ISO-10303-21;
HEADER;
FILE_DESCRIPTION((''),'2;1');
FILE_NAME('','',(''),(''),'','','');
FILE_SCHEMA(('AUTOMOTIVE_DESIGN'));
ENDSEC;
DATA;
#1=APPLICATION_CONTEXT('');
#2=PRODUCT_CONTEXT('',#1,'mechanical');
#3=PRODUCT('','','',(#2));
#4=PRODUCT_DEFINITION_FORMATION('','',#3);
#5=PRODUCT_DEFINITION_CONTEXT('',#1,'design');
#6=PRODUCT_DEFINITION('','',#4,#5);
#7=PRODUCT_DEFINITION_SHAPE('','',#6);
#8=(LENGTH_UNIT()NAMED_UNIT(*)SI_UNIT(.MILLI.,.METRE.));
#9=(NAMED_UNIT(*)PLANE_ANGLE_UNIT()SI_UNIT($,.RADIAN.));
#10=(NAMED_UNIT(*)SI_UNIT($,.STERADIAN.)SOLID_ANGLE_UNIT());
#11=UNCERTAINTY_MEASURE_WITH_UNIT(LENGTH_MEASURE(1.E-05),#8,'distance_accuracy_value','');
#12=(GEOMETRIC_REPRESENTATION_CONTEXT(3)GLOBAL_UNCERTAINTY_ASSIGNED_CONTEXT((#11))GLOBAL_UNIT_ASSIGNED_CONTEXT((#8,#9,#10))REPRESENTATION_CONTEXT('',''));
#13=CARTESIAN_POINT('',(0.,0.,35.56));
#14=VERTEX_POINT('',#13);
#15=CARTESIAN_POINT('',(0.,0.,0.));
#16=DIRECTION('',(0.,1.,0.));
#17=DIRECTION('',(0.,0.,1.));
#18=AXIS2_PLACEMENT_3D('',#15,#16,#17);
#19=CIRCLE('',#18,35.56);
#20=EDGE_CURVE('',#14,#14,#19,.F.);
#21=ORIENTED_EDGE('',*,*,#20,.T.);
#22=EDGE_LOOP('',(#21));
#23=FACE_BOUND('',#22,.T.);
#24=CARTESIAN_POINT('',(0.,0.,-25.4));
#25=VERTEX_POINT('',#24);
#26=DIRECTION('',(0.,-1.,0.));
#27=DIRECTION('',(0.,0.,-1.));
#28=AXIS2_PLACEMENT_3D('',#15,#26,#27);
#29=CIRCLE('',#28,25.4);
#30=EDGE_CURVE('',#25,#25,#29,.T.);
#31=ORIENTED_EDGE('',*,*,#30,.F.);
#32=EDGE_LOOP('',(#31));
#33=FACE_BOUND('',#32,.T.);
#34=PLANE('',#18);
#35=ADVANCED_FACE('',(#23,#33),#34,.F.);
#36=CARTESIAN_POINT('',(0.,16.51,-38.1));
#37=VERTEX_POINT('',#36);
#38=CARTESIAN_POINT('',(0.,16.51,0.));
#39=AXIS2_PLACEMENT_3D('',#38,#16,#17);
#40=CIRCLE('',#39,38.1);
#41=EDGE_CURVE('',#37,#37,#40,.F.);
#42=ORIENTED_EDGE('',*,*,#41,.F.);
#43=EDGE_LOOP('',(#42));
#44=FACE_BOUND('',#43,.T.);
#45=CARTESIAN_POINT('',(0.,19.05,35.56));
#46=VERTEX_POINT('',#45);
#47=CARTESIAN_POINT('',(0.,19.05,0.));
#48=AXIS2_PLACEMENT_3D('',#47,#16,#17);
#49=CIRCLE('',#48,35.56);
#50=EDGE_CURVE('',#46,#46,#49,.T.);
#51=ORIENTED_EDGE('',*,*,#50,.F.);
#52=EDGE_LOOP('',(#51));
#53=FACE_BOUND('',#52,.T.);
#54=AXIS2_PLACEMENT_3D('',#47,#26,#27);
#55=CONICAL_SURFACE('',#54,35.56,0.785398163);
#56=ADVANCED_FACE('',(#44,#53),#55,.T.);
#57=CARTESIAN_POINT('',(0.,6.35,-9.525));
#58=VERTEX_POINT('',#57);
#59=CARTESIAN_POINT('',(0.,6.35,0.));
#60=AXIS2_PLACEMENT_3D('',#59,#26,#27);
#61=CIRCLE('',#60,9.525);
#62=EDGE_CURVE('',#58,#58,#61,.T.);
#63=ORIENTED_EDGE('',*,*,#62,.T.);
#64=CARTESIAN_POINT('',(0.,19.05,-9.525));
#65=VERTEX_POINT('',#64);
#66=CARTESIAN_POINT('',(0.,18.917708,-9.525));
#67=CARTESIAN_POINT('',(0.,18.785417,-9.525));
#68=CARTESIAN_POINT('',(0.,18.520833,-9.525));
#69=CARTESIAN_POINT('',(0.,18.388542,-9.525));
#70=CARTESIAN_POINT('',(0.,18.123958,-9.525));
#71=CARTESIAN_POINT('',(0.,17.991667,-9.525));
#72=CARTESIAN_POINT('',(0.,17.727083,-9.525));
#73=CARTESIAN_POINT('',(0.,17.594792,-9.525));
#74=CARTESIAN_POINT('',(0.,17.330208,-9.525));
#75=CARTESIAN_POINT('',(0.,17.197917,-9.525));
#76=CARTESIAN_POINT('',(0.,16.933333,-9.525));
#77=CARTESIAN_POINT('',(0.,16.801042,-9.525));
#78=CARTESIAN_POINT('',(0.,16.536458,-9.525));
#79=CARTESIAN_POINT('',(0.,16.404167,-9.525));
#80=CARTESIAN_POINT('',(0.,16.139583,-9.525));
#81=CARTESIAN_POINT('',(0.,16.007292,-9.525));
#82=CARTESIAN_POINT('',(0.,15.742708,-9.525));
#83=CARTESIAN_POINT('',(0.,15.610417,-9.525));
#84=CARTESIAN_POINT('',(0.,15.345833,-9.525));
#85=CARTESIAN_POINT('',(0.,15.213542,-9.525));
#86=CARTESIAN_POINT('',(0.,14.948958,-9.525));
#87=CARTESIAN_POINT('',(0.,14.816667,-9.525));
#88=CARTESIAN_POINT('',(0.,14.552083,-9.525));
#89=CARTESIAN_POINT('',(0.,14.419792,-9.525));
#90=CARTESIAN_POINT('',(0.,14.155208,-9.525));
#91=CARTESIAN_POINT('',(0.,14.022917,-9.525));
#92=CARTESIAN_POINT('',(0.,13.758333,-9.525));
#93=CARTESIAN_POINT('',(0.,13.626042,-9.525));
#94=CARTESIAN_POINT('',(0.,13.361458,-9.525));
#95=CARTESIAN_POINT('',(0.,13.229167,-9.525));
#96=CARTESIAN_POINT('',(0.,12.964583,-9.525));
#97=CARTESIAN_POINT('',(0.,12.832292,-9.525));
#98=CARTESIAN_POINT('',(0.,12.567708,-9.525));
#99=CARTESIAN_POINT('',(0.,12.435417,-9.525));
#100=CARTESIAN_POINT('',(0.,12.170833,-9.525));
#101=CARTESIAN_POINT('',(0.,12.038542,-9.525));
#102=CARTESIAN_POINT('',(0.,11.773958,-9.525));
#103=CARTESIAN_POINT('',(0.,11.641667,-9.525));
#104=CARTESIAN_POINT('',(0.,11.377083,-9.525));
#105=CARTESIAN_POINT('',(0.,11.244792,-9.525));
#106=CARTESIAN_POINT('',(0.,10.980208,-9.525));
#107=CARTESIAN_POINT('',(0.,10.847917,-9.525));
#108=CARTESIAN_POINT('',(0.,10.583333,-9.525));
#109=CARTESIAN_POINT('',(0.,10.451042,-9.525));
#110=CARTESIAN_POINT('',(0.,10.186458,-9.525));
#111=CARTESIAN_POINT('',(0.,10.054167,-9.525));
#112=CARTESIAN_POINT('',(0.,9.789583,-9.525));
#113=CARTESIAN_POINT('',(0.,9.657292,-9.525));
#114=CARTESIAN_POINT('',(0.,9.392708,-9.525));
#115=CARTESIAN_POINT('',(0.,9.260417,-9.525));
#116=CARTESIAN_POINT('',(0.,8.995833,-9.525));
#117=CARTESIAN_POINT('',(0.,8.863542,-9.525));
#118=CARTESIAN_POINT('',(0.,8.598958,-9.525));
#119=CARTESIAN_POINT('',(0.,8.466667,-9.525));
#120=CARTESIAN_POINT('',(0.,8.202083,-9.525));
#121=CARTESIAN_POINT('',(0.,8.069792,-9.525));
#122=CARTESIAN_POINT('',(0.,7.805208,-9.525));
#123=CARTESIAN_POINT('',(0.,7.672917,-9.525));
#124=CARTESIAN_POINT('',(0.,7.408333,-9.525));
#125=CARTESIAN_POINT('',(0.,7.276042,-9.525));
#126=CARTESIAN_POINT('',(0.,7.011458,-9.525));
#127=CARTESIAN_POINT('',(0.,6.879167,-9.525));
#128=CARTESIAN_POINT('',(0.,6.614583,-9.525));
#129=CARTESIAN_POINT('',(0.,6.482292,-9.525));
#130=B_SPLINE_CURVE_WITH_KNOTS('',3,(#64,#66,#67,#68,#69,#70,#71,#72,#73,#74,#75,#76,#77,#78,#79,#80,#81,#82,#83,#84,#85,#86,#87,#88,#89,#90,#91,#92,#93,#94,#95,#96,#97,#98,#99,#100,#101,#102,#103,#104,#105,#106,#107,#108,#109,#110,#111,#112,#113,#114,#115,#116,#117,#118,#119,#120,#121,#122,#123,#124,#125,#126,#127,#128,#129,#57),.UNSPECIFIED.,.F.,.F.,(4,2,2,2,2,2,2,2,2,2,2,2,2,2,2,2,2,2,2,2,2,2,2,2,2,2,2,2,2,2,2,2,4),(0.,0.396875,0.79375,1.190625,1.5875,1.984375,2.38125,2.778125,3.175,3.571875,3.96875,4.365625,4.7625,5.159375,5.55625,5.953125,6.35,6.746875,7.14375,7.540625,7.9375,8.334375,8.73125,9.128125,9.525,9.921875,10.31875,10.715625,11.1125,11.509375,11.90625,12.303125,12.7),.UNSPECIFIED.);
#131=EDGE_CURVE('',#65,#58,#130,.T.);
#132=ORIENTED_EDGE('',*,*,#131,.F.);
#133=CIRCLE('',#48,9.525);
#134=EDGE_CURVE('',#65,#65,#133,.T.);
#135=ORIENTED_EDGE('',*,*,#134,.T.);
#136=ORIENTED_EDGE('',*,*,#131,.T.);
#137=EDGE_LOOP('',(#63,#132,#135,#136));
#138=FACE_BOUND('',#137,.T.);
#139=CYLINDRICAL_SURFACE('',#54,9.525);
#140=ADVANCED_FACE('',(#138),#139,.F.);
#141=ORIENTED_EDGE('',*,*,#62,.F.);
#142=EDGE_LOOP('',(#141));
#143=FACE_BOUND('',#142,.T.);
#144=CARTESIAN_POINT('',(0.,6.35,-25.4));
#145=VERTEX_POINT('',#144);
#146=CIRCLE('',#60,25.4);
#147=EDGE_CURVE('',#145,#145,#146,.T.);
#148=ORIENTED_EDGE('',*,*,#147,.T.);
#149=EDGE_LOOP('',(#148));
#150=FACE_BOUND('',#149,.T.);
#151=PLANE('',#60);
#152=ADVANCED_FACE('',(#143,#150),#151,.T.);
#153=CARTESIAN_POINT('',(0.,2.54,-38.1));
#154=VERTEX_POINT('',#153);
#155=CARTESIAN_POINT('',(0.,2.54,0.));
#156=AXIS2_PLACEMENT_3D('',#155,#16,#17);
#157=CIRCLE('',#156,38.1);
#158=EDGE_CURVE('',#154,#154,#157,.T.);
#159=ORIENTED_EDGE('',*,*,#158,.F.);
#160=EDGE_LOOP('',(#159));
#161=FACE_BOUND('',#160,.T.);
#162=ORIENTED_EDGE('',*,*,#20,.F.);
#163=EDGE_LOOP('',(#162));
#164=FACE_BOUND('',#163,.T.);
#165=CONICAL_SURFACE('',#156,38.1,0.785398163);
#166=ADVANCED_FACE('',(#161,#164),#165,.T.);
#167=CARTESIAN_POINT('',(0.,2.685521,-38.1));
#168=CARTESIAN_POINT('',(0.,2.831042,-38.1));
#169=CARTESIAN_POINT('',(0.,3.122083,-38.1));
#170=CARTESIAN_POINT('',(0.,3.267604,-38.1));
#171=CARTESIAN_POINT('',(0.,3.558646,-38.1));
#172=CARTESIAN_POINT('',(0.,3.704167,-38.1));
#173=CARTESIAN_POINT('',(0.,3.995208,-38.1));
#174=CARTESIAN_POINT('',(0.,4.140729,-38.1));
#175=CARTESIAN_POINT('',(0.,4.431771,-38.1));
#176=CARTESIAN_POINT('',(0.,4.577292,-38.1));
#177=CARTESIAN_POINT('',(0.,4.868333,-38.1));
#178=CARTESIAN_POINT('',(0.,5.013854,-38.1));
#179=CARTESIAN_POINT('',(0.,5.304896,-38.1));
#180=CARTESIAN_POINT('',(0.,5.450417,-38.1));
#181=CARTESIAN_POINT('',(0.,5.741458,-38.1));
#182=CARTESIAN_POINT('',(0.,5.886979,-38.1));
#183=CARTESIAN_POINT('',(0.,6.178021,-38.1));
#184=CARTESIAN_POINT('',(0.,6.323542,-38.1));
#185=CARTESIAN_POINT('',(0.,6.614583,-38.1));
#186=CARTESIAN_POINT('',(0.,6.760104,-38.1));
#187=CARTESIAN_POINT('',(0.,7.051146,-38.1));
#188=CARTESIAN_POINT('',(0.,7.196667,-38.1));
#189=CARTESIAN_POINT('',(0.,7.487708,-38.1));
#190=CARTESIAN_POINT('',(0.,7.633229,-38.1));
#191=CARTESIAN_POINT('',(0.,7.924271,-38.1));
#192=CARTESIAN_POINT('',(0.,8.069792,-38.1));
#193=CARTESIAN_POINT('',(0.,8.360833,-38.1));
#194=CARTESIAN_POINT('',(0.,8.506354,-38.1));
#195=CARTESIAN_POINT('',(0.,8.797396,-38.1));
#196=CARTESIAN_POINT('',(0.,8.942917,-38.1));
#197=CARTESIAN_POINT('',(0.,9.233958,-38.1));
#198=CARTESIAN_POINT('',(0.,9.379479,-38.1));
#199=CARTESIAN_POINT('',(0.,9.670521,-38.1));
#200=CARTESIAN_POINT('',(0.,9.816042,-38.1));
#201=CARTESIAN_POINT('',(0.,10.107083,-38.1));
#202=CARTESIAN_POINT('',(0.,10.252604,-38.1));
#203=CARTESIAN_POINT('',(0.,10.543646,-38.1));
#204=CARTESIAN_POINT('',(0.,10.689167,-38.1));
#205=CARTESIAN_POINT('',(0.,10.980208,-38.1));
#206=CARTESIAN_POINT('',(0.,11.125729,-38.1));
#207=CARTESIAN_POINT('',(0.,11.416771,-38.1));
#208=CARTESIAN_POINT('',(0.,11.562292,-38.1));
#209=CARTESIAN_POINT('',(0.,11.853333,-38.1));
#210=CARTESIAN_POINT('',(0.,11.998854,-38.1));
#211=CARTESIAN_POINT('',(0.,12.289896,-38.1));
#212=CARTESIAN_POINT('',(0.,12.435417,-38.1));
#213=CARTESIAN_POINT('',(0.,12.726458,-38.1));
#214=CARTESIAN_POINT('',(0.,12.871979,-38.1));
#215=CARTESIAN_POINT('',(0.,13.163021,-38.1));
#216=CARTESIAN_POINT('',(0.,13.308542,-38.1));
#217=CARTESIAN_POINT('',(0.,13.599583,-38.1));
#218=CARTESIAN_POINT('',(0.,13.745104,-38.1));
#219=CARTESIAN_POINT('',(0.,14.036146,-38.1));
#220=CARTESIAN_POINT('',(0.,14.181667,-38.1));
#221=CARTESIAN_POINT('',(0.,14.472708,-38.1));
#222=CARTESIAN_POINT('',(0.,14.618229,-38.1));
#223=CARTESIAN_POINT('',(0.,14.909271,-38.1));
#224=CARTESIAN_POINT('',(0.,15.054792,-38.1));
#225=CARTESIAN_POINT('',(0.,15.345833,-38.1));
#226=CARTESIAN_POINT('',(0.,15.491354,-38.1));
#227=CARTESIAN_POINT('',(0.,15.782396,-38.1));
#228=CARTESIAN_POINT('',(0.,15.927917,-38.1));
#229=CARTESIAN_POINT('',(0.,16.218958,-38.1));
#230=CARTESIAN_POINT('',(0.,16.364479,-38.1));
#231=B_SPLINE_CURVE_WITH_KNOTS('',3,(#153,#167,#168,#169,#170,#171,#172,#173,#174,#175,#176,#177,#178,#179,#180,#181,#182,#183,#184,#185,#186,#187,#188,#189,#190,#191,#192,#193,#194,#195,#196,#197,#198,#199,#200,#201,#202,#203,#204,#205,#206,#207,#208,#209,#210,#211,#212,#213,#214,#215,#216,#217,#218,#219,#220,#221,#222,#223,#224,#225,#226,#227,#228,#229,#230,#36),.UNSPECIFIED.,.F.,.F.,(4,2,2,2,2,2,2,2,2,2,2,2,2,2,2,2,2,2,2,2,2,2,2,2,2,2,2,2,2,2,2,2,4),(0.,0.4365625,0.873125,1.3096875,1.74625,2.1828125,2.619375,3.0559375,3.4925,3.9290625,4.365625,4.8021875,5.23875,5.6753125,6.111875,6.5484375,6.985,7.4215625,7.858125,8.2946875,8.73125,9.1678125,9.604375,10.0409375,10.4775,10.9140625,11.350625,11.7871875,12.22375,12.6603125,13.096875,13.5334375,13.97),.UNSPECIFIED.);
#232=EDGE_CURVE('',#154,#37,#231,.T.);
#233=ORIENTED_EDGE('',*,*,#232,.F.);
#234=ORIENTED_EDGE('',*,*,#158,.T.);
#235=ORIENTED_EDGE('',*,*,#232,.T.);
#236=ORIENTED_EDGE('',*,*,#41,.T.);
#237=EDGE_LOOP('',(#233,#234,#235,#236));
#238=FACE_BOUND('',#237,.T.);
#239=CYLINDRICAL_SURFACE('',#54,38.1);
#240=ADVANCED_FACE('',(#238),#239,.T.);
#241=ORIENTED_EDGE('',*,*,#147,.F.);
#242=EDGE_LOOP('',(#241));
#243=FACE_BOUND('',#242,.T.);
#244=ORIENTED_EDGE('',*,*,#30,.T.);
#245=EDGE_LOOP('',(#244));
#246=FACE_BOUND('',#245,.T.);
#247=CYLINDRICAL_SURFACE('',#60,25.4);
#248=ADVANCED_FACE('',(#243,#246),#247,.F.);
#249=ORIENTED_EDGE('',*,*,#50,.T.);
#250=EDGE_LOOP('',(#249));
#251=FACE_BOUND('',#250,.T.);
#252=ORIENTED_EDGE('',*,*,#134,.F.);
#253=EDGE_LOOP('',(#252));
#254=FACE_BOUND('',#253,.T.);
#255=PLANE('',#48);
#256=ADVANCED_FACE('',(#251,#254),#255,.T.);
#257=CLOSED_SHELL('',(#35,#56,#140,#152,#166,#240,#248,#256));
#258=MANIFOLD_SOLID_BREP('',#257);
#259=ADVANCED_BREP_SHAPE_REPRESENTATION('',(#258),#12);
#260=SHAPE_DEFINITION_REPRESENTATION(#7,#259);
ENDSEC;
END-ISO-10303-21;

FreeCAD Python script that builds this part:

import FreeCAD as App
import Part
import Sketcher

V = App.Vector
Q = App.Units.Quantity


def edges_at(feature, points):
    """Names of the edges that pass closest to the given points."""
    edges = feature.Shape.Edges
    near = lambda p: min(range(len(edges)), key=lambda i: edges[i].distToShape(Part.Vertex(*p))[0])
    return sorted({f"Edge{near(p) + 1}" for p in points})

doc = App.newDocument("Part")
body = doc.addObject("PartDesign::Body", "Body")

# Sketch on XZ plane
sketch1 = body.newObject("Sketcher::SketchObject", "Sketch")
sketch1.AttachmentSupport = (doc.getObject("XZ_Plane"), [""])
sketch1.MapMode = "FlatFace"
sketch1.addGeometry(Part.Circle(V(0, 0, 0), V(0, 0, 1), 38), False)
sketch1.addGeometry(Part.Circle(V(0, 0, 0), V(0, 0, 1), 10), False)
sketch1.addConstraint(Sketcher.Constraint("Coincident", 0, 3, -1, 1))
sketch1.addConstraint(Sketcher.Constraint("Coincident", 1, 3, -1, 1))
sketch1.addConstraint(Sketcher.Constraint("Diameter", 0, Q("3 in")))
sketch1.addConstraint(Sketcher.Constraint("Diameter", 1, Q("0.75 in")))
pad1 = body.newObject("PartDesign::Pad", "Pad")
pad1.Profile = sketch1
pad1.Length = Q("0.75 in")
pad1.Reversed = True
doc.recompute()

chamfer = body.newObject("PartDesign::Chamfer", "Chamfer")
chamfer.Base = (pad1, edges_at(pad1, [(0, 0, 38.1), (0, 19.05, 38.1)]))
chamfer.Size = Q("0.1 in")

# Sketch on XZ plane
sketch2 = body.newObject("Sketcher::SketchObject", "Sketch001")
sketch2.AttachmentSupport = (doc.getObject("XZ_Plane"), [""])
sketch2.MapMode = "FlatFace"
sketch2.addGeometry(Part.Circle(V(0, 0, 0), V(0, 0, 1), 25), False)
sketch2.addConstraint(Sketcher.Constraint("Coincident", 0, 3, -1, 1))
sketch2.addConstraint(Sketcher.Constraint("Diameter", 0, Q("2 in")))
pocket1 = body.newObject("PartDesign::Pocket", "Pocket")
pocket1.Profile = sketch2
pocket1.Length = Q("0.25 in")

doc.recompute()
